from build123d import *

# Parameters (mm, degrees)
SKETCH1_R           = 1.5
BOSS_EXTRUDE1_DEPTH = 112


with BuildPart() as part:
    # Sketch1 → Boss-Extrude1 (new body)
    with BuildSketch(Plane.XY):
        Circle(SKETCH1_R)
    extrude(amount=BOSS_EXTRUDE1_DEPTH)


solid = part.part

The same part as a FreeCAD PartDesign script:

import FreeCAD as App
import Part
import Sketcher
Q = App.Units.Quantity

doc = App.newDocument("Part")
body = doc.addObject("PartDesign::Body", "Body")

sketch1 = doc.addObject("Sketcher::SketchObject", "Sketch")
body.addObject(sketch1)
sketch1.AttachmentSupport = (doc.XY_Plane, [""])
sketch1.MapMode = "FlatFace"
sketch1.addGeometry(Part.Circle(App.Vector(0, 0, 0), App.Vector(0, 0, 1), 1.5), False)
sketch1.addConstraint(Sketcher.Constraint("Coincident", 0, 3, -1, 1))
sketch1.addConstraint(Sketcher.Constraint("Diameter", 0, Q("3 mm")))
pad1 = doc.addObject("PartDesign::Pad", "Pad")
body.addObject(pad1)
pad1.Profile = sketch1
pad1.Length = 112

doc.recompute()
